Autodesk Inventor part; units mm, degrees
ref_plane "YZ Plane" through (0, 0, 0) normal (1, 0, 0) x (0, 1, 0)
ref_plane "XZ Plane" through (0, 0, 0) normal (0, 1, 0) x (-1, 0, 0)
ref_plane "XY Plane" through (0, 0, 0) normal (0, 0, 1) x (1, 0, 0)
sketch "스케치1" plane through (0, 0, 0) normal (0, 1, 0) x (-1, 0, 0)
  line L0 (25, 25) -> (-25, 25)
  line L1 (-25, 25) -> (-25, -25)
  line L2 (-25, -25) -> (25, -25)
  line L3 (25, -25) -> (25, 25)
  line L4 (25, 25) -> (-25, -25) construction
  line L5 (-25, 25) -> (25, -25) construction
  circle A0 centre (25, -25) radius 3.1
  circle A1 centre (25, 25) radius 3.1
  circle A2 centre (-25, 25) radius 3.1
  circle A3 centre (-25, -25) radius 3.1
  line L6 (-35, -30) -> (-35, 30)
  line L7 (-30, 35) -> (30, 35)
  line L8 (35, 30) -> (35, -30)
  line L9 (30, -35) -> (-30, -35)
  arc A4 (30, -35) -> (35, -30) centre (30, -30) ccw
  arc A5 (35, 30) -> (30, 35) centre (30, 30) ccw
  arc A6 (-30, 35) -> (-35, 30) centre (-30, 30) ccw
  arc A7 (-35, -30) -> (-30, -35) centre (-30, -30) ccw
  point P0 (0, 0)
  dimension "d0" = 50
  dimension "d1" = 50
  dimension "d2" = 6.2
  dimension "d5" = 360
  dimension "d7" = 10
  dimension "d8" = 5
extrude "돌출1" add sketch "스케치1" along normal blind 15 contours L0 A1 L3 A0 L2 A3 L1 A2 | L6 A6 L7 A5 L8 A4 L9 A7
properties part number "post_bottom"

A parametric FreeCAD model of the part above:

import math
import FreeCAD as App
import Part
import Sketcher
from FreeCAD import Vector

doc = App.newDocument("Part")
params = doc.addObject("Spreadsheet::Sheet", "Params")
for row, (alias, value) in enumerate([
    ("sketch1_radius", "5 mm"),
    ("sketch1_diameter", "6.2 mm"),
    ("pad1_length", "15 mm"),
], start=1):
    params.set(f"A{row}", alias)
    params.set(f"B{row}", "=" + value)
    params.setAlias(f"B{row}", alias)

body = doc.addObject("PartDesign::Body", "Body")

# Sketch on XZ plane
sketch1 = body.newObject("Sketcher::SketchObject", "Sketch")
sketch1.AttachmentSupport = (doc.getObject("XZ_Plane"), [""])
sketch1.MapMode = "FlatFace"
sketch1.addGeometry([
    Part.LineSegment(Vector(35, 30, 0), Vector(35, -30, 0)),  # 0
    Part.ArcOfCircle(Part.Circle(Vector(30, -30, 0), Vector(0, 0, 1), 5), math.radians(-90), math.radians(0)),  # 1
    Part.LineSegment(Vector(30, -35, 0), Vector(-30, -35, 0)),  # 2
    Part.ArcOfCircle(Part.Circle(Vector(-30, -30, 0), Vector(0, 0, 1), 5), math.radians(180), math.radians(270)),  # 3
    Part.LineSegment(Vector(-35, -30, 0), Vector(-35, 30, 0)),  # 4
    Part.ArcOfCircle(Part.Circle(Vector(-30, 30, 0), Vector(0, 0, 1), 5), math.radians(90), math.radians(180)),  # 5
    Part.LineSegment(Vector(-30, 35, 0), Vector(30, 35, 0)),  # 6
    Part.ArcOfCircle(Part.Circle(Vector(30, 30, 0), Vector(0, 0, 1), 5), math.radians(0), math.radians(90)),  # 7
    Part.Circle(Vector(-25, 25, 0), Vector(0, 0, 1), 3.1),  # 8
    Part.Circle(Vector(-25, -25, 0), Vector(0, 0, 1), 3.1),  # 9
    Part.Circle(Vector(25, -25, 0), Vector(0, 0, 1), 3.1),  # 10
    Part.Circle(Vector(25, 25, 0), Vector(0, 0, 1), 3.1),  # 11
], False)
sketch1.addConstraint([
    Sketcher.Constraint("Tangent", 0, 2, 1, 2),
    Sketcher.Constraint("Tangent", 1, 1, 2, 1),
    Sketcher.Constraint("Tangent", 2, 2, 3, 2),
    Sketcher.Constraint("Tangent", 3, 1, 4, 1),
    Sketcher.Constraint("Tangent", 4, 2, 5, 2),
    Sketcher.Constraint("Tangent", 5, 1, 6, 1),
    Sketcher.Constraint("Tangent", 6, 2, 7, 2),
    Sketcher.Constraint("Tangent", 7, 1, 0, 1),
    Sketcher.Constraint("Vertical", 0),
    Sketcher.Constraint("Horizontal", 2),
    Sketcher.Constraint("Vertical", 4),
    Sketcher.Constraint("Horizontal", 6),
    Sketcher.Constraint("Equal", 1, 3),
    Sketcher.Constraint("Equal", 3, 5),
    Sketcher.Constraint("Equal", 5, 7),
    Sketcher.Constraint("Equal", 8, 9),
    Sketcher.Constraint("Equal", 9, 10),
    Sketcher.Constraint("Equal", 10, 11),
    Sketcher.Constraint("Symmetric", 1, 3, 5, 3, -1, 1),
    Sketcher.Constraint("Symmetric", 8, 3, 10, 3, -1, 1),
    Sketcher.Constraint("Symmetric", 9, 3, 11, 3, -1, 1),
    Sketcher.Constraint("Symmetric", 9, 3, 10, 3, -2),
    Sketcher.Constraint("Equal", 6, 0),
    Sketcher.Constraint("Radius", 1, 5.0),
    Sketcher.Constraint("Diameter", 8, 6.2),
    Sketcher.Constraint("DistanceX", 5, 3, 8, 3, 5.0),
    Sketcher.Constraint("DistanceY", 8, 3, 5, 3, 5.0),
    Sketcher.Constraint("DistanceY", 9, 3, 8, 3, 50.0),
])
sketch1.setExpression("Constraints[23]", "Params.sketch1_radius")
sketch1.setExpression("Constraints[24]", "Params.sketch1_diameter")
pad1 = body.newObject("PartDesign::Pad", "Pad")
pad1.Profile = sketch1
pad1.setExpression("Length", "Params.pad1_length")
pad1.Reversed = True

doc.recompute()
